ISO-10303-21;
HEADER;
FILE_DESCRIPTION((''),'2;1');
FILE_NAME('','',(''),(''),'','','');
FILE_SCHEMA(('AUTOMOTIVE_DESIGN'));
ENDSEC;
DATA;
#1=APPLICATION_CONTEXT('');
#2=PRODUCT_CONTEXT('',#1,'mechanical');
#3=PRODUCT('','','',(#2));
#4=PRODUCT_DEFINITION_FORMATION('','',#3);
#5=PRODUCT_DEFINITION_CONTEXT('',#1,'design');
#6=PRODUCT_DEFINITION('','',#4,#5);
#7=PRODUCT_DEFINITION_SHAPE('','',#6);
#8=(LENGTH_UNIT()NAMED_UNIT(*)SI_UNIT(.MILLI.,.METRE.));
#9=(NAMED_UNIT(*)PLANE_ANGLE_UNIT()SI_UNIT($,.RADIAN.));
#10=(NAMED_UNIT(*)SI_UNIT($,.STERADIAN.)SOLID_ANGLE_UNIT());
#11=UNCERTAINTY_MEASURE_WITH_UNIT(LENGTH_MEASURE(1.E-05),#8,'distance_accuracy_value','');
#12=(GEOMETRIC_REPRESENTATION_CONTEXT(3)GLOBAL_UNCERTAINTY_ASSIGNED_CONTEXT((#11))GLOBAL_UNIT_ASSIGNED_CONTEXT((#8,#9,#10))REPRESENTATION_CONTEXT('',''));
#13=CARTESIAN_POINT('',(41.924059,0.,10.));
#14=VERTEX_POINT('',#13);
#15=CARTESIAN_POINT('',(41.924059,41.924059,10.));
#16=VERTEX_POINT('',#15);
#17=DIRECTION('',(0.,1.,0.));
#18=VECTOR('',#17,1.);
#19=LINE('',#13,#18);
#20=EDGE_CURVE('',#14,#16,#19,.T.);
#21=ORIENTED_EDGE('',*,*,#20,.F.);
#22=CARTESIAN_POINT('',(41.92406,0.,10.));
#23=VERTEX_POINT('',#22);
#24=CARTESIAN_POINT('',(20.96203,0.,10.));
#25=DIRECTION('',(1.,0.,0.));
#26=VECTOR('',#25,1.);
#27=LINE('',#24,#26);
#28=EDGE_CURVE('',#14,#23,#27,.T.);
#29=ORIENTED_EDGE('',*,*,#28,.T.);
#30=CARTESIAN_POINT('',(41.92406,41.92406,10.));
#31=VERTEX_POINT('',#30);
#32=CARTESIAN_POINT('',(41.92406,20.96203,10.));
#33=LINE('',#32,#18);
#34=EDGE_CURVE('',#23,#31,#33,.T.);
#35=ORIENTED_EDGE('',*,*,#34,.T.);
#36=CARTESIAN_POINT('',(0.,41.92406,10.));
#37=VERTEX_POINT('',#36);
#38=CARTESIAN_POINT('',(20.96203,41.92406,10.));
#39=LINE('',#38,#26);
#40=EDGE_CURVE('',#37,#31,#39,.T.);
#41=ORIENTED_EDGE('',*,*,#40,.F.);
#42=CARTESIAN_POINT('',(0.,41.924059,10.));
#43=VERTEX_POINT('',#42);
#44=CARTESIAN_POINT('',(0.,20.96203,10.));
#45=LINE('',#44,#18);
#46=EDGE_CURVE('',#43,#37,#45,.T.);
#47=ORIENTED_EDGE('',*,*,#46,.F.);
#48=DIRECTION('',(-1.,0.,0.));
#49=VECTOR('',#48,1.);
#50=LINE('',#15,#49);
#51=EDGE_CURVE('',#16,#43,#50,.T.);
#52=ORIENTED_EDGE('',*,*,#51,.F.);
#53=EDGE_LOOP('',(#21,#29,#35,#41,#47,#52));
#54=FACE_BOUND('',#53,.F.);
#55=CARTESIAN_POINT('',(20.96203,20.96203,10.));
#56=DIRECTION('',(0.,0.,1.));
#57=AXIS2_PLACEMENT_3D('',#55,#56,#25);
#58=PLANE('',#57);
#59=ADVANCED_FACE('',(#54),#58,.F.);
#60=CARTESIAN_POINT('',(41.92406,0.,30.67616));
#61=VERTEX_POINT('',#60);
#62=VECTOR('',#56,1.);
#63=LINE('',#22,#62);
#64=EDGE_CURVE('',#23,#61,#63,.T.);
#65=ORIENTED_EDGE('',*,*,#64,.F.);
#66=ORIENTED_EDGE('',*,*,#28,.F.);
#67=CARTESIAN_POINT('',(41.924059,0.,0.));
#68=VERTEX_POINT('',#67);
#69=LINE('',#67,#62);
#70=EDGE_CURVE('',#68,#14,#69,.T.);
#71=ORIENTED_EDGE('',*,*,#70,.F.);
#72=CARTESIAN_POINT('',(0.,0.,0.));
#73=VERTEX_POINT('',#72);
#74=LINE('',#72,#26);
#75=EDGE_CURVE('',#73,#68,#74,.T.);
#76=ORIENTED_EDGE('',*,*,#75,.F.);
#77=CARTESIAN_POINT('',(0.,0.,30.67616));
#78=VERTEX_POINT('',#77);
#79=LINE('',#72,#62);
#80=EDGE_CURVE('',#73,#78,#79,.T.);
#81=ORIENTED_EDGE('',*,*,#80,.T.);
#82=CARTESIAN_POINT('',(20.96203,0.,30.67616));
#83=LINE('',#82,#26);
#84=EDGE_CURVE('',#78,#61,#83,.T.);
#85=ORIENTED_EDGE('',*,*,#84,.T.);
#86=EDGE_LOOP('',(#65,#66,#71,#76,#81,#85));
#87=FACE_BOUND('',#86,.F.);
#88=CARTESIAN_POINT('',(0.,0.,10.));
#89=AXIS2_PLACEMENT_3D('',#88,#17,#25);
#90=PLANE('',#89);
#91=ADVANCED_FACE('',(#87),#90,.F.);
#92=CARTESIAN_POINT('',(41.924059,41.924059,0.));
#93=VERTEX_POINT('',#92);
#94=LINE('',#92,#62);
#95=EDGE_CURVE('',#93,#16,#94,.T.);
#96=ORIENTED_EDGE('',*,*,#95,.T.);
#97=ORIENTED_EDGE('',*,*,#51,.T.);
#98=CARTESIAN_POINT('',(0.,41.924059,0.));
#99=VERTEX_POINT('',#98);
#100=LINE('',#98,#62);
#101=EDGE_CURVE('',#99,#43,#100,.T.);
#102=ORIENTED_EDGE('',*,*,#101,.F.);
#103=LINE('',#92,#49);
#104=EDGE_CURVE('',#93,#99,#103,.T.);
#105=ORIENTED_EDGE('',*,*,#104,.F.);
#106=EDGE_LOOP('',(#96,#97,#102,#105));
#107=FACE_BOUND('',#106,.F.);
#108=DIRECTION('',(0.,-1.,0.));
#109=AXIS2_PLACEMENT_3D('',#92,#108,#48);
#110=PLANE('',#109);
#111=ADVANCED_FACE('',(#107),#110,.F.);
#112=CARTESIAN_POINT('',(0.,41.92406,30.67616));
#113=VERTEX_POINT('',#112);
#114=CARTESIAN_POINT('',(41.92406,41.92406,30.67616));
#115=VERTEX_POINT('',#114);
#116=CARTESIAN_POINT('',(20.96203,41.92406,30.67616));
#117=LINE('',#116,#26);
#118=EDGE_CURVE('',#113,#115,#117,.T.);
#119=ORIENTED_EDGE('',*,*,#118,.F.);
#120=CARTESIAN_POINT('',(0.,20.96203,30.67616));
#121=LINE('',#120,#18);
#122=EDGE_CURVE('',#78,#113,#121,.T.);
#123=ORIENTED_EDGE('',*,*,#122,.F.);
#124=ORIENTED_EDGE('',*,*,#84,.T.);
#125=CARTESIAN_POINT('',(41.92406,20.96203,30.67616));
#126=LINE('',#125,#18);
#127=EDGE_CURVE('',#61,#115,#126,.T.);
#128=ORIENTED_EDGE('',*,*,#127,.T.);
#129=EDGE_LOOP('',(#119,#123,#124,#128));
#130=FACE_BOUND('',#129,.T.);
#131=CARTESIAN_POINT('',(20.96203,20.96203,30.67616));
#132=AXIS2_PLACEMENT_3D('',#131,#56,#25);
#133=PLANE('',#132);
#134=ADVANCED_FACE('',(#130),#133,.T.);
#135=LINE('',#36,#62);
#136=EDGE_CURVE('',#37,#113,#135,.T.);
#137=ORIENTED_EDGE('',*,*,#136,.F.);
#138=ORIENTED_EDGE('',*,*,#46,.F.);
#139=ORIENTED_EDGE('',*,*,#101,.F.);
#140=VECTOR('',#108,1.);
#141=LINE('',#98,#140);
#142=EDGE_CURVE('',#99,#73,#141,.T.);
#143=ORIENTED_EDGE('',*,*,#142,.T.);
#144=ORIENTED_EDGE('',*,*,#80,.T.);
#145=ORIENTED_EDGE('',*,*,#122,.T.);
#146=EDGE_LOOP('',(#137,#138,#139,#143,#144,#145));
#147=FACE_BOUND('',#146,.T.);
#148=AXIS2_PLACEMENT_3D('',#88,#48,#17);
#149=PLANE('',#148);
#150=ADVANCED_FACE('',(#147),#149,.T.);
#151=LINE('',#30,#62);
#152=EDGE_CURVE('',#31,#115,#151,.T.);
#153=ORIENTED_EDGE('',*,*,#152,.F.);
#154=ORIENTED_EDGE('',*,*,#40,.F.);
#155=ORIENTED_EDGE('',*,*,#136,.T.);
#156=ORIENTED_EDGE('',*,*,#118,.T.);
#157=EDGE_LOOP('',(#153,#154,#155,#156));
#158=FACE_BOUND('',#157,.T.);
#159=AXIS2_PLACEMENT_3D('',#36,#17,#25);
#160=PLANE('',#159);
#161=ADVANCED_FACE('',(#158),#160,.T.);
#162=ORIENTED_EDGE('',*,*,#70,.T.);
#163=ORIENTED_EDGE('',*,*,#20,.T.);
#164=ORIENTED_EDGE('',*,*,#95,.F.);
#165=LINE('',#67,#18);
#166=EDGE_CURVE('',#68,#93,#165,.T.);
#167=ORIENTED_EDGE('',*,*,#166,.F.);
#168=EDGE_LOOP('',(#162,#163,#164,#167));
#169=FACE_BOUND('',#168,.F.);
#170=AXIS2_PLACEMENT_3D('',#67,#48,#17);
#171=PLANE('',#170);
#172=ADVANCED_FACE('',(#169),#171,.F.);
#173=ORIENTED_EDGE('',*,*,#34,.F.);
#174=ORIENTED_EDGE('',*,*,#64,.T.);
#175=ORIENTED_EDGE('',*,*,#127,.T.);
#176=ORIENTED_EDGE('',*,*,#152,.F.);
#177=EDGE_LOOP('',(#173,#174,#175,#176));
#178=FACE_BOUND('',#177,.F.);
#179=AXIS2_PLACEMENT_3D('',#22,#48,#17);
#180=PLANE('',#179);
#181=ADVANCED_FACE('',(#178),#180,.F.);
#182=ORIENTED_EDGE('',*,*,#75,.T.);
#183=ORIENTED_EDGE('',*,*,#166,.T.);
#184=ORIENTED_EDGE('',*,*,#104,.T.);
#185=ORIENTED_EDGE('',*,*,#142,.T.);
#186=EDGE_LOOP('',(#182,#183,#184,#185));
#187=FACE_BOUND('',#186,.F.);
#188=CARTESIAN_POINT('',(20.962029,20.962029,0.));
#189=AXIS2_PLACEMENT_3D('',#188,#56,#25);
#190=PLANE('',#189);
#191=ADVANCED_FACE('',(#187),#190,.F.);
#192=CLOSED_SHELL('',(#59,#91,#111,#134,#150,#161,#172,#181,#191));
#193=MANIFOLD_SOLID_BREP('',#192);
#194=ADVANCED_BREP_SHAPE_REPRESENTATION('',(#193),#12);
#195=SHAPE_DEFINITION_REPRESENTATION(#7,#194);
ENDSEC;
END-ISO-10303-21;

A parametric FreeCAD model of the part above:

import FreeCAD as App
import Part
import Sketcher

V = App.Vector
Q = App.Units.Quantity


def add_polygon(sketch, points):
    """Adds a closed chain of lines whose ends are joined by coincident constraints."""
    first, n = sketch.GeometryCount, len(points)
    for a, b in zip(points, points[1:] + points[:1]):
        sketch.addGeometry(Part.LineSegment(App.Vector(*a, 0), App.Vector(*b, 0)), False)
    for i in range(n):
        sketch.addConstraint(Sketcher.Constraint("Coincident", first + i, 2, first + (i + 1) % n, 1))

doc = App.newDocument("Part")
body = doc.addObject("PartDesign::Body", "Body")

sketch1 = body.newObject("Sketcher::SketchObject", "Sketch")
sketch1.AttachmentSupport = (doc.getObject("XY_Plane"), [""])
sketch1.MapMode = "FlatFace"
add_polygon(sketch1, [(0, 42), (0, 0), (42, 0), (42, 42)])
sketch1.addConstraint(Sketcher.Constraint("Vertical", 0))
sketch1.addConstraint(Sketcher.Constraint("Horizontal", 1))
sketch1.addConstraint(Sketcher.Constraint("Vertical", 2))
sketch1.addConstraint(Sketcher.Constraint("Horizontal", 3))
sketch1.addConstraint(Sketcher.Constraint("Coincident", 0, 2, -1, 1))
sketch1.addConstraint(Sketcher.Constraint("Equal", 3, 0))
sketch1.addConstraint(Sketcher.Constraint("DistanceX", 1, 1, 1, 2, Q("41.924059 mm")))
pad1 = body.newObject("PartDesign::Pad", "Pad")
pad1.Profile = sketch1
pad1.Length = 10

sketch2 = body.newObject("Sketcher::SketchObject", "Sketch001")
sketch2.AttachmentSupport = (doc.getObject("XY_Plane"), [""])
sketch2.MapMode = "FlatFace"
sketch2.AttachmentOffset = App.Placement(V(0, 0, 10), App.Rotation())
add_polygon(sketch2, [(0, 42), (0, 0), (42, 0), (42, 42)])
sketch2.addConstraint(Sketcher.Constraint("Vertical", 0))
sketch2.addConstraint(Sketcher.Constraint("Horizontal", 1))
sketch2.addConstraint(Sketcher.Constraint("Vertical", 2))
sketch2.addConstraint(Sketcher.Constraint("Horizontal", 3))
sketch2.addConstraint(Sketcher.Constraint("Coincident", 0, 2, -1, 1))
sketch2.addConstraint(Sketcher.Constraint("Equal", 3, 0))
sketch2.addConstraint(Sketcher.Constraint("DistanceX", 1, 1, 1, 2, Q("41.92406 mm")))
pad2 = body.newObject("PartDesign::Pad", "Pad001")
pad2.Profile = sketch2
pad2.Length = 20.67616

doc.recompute()
